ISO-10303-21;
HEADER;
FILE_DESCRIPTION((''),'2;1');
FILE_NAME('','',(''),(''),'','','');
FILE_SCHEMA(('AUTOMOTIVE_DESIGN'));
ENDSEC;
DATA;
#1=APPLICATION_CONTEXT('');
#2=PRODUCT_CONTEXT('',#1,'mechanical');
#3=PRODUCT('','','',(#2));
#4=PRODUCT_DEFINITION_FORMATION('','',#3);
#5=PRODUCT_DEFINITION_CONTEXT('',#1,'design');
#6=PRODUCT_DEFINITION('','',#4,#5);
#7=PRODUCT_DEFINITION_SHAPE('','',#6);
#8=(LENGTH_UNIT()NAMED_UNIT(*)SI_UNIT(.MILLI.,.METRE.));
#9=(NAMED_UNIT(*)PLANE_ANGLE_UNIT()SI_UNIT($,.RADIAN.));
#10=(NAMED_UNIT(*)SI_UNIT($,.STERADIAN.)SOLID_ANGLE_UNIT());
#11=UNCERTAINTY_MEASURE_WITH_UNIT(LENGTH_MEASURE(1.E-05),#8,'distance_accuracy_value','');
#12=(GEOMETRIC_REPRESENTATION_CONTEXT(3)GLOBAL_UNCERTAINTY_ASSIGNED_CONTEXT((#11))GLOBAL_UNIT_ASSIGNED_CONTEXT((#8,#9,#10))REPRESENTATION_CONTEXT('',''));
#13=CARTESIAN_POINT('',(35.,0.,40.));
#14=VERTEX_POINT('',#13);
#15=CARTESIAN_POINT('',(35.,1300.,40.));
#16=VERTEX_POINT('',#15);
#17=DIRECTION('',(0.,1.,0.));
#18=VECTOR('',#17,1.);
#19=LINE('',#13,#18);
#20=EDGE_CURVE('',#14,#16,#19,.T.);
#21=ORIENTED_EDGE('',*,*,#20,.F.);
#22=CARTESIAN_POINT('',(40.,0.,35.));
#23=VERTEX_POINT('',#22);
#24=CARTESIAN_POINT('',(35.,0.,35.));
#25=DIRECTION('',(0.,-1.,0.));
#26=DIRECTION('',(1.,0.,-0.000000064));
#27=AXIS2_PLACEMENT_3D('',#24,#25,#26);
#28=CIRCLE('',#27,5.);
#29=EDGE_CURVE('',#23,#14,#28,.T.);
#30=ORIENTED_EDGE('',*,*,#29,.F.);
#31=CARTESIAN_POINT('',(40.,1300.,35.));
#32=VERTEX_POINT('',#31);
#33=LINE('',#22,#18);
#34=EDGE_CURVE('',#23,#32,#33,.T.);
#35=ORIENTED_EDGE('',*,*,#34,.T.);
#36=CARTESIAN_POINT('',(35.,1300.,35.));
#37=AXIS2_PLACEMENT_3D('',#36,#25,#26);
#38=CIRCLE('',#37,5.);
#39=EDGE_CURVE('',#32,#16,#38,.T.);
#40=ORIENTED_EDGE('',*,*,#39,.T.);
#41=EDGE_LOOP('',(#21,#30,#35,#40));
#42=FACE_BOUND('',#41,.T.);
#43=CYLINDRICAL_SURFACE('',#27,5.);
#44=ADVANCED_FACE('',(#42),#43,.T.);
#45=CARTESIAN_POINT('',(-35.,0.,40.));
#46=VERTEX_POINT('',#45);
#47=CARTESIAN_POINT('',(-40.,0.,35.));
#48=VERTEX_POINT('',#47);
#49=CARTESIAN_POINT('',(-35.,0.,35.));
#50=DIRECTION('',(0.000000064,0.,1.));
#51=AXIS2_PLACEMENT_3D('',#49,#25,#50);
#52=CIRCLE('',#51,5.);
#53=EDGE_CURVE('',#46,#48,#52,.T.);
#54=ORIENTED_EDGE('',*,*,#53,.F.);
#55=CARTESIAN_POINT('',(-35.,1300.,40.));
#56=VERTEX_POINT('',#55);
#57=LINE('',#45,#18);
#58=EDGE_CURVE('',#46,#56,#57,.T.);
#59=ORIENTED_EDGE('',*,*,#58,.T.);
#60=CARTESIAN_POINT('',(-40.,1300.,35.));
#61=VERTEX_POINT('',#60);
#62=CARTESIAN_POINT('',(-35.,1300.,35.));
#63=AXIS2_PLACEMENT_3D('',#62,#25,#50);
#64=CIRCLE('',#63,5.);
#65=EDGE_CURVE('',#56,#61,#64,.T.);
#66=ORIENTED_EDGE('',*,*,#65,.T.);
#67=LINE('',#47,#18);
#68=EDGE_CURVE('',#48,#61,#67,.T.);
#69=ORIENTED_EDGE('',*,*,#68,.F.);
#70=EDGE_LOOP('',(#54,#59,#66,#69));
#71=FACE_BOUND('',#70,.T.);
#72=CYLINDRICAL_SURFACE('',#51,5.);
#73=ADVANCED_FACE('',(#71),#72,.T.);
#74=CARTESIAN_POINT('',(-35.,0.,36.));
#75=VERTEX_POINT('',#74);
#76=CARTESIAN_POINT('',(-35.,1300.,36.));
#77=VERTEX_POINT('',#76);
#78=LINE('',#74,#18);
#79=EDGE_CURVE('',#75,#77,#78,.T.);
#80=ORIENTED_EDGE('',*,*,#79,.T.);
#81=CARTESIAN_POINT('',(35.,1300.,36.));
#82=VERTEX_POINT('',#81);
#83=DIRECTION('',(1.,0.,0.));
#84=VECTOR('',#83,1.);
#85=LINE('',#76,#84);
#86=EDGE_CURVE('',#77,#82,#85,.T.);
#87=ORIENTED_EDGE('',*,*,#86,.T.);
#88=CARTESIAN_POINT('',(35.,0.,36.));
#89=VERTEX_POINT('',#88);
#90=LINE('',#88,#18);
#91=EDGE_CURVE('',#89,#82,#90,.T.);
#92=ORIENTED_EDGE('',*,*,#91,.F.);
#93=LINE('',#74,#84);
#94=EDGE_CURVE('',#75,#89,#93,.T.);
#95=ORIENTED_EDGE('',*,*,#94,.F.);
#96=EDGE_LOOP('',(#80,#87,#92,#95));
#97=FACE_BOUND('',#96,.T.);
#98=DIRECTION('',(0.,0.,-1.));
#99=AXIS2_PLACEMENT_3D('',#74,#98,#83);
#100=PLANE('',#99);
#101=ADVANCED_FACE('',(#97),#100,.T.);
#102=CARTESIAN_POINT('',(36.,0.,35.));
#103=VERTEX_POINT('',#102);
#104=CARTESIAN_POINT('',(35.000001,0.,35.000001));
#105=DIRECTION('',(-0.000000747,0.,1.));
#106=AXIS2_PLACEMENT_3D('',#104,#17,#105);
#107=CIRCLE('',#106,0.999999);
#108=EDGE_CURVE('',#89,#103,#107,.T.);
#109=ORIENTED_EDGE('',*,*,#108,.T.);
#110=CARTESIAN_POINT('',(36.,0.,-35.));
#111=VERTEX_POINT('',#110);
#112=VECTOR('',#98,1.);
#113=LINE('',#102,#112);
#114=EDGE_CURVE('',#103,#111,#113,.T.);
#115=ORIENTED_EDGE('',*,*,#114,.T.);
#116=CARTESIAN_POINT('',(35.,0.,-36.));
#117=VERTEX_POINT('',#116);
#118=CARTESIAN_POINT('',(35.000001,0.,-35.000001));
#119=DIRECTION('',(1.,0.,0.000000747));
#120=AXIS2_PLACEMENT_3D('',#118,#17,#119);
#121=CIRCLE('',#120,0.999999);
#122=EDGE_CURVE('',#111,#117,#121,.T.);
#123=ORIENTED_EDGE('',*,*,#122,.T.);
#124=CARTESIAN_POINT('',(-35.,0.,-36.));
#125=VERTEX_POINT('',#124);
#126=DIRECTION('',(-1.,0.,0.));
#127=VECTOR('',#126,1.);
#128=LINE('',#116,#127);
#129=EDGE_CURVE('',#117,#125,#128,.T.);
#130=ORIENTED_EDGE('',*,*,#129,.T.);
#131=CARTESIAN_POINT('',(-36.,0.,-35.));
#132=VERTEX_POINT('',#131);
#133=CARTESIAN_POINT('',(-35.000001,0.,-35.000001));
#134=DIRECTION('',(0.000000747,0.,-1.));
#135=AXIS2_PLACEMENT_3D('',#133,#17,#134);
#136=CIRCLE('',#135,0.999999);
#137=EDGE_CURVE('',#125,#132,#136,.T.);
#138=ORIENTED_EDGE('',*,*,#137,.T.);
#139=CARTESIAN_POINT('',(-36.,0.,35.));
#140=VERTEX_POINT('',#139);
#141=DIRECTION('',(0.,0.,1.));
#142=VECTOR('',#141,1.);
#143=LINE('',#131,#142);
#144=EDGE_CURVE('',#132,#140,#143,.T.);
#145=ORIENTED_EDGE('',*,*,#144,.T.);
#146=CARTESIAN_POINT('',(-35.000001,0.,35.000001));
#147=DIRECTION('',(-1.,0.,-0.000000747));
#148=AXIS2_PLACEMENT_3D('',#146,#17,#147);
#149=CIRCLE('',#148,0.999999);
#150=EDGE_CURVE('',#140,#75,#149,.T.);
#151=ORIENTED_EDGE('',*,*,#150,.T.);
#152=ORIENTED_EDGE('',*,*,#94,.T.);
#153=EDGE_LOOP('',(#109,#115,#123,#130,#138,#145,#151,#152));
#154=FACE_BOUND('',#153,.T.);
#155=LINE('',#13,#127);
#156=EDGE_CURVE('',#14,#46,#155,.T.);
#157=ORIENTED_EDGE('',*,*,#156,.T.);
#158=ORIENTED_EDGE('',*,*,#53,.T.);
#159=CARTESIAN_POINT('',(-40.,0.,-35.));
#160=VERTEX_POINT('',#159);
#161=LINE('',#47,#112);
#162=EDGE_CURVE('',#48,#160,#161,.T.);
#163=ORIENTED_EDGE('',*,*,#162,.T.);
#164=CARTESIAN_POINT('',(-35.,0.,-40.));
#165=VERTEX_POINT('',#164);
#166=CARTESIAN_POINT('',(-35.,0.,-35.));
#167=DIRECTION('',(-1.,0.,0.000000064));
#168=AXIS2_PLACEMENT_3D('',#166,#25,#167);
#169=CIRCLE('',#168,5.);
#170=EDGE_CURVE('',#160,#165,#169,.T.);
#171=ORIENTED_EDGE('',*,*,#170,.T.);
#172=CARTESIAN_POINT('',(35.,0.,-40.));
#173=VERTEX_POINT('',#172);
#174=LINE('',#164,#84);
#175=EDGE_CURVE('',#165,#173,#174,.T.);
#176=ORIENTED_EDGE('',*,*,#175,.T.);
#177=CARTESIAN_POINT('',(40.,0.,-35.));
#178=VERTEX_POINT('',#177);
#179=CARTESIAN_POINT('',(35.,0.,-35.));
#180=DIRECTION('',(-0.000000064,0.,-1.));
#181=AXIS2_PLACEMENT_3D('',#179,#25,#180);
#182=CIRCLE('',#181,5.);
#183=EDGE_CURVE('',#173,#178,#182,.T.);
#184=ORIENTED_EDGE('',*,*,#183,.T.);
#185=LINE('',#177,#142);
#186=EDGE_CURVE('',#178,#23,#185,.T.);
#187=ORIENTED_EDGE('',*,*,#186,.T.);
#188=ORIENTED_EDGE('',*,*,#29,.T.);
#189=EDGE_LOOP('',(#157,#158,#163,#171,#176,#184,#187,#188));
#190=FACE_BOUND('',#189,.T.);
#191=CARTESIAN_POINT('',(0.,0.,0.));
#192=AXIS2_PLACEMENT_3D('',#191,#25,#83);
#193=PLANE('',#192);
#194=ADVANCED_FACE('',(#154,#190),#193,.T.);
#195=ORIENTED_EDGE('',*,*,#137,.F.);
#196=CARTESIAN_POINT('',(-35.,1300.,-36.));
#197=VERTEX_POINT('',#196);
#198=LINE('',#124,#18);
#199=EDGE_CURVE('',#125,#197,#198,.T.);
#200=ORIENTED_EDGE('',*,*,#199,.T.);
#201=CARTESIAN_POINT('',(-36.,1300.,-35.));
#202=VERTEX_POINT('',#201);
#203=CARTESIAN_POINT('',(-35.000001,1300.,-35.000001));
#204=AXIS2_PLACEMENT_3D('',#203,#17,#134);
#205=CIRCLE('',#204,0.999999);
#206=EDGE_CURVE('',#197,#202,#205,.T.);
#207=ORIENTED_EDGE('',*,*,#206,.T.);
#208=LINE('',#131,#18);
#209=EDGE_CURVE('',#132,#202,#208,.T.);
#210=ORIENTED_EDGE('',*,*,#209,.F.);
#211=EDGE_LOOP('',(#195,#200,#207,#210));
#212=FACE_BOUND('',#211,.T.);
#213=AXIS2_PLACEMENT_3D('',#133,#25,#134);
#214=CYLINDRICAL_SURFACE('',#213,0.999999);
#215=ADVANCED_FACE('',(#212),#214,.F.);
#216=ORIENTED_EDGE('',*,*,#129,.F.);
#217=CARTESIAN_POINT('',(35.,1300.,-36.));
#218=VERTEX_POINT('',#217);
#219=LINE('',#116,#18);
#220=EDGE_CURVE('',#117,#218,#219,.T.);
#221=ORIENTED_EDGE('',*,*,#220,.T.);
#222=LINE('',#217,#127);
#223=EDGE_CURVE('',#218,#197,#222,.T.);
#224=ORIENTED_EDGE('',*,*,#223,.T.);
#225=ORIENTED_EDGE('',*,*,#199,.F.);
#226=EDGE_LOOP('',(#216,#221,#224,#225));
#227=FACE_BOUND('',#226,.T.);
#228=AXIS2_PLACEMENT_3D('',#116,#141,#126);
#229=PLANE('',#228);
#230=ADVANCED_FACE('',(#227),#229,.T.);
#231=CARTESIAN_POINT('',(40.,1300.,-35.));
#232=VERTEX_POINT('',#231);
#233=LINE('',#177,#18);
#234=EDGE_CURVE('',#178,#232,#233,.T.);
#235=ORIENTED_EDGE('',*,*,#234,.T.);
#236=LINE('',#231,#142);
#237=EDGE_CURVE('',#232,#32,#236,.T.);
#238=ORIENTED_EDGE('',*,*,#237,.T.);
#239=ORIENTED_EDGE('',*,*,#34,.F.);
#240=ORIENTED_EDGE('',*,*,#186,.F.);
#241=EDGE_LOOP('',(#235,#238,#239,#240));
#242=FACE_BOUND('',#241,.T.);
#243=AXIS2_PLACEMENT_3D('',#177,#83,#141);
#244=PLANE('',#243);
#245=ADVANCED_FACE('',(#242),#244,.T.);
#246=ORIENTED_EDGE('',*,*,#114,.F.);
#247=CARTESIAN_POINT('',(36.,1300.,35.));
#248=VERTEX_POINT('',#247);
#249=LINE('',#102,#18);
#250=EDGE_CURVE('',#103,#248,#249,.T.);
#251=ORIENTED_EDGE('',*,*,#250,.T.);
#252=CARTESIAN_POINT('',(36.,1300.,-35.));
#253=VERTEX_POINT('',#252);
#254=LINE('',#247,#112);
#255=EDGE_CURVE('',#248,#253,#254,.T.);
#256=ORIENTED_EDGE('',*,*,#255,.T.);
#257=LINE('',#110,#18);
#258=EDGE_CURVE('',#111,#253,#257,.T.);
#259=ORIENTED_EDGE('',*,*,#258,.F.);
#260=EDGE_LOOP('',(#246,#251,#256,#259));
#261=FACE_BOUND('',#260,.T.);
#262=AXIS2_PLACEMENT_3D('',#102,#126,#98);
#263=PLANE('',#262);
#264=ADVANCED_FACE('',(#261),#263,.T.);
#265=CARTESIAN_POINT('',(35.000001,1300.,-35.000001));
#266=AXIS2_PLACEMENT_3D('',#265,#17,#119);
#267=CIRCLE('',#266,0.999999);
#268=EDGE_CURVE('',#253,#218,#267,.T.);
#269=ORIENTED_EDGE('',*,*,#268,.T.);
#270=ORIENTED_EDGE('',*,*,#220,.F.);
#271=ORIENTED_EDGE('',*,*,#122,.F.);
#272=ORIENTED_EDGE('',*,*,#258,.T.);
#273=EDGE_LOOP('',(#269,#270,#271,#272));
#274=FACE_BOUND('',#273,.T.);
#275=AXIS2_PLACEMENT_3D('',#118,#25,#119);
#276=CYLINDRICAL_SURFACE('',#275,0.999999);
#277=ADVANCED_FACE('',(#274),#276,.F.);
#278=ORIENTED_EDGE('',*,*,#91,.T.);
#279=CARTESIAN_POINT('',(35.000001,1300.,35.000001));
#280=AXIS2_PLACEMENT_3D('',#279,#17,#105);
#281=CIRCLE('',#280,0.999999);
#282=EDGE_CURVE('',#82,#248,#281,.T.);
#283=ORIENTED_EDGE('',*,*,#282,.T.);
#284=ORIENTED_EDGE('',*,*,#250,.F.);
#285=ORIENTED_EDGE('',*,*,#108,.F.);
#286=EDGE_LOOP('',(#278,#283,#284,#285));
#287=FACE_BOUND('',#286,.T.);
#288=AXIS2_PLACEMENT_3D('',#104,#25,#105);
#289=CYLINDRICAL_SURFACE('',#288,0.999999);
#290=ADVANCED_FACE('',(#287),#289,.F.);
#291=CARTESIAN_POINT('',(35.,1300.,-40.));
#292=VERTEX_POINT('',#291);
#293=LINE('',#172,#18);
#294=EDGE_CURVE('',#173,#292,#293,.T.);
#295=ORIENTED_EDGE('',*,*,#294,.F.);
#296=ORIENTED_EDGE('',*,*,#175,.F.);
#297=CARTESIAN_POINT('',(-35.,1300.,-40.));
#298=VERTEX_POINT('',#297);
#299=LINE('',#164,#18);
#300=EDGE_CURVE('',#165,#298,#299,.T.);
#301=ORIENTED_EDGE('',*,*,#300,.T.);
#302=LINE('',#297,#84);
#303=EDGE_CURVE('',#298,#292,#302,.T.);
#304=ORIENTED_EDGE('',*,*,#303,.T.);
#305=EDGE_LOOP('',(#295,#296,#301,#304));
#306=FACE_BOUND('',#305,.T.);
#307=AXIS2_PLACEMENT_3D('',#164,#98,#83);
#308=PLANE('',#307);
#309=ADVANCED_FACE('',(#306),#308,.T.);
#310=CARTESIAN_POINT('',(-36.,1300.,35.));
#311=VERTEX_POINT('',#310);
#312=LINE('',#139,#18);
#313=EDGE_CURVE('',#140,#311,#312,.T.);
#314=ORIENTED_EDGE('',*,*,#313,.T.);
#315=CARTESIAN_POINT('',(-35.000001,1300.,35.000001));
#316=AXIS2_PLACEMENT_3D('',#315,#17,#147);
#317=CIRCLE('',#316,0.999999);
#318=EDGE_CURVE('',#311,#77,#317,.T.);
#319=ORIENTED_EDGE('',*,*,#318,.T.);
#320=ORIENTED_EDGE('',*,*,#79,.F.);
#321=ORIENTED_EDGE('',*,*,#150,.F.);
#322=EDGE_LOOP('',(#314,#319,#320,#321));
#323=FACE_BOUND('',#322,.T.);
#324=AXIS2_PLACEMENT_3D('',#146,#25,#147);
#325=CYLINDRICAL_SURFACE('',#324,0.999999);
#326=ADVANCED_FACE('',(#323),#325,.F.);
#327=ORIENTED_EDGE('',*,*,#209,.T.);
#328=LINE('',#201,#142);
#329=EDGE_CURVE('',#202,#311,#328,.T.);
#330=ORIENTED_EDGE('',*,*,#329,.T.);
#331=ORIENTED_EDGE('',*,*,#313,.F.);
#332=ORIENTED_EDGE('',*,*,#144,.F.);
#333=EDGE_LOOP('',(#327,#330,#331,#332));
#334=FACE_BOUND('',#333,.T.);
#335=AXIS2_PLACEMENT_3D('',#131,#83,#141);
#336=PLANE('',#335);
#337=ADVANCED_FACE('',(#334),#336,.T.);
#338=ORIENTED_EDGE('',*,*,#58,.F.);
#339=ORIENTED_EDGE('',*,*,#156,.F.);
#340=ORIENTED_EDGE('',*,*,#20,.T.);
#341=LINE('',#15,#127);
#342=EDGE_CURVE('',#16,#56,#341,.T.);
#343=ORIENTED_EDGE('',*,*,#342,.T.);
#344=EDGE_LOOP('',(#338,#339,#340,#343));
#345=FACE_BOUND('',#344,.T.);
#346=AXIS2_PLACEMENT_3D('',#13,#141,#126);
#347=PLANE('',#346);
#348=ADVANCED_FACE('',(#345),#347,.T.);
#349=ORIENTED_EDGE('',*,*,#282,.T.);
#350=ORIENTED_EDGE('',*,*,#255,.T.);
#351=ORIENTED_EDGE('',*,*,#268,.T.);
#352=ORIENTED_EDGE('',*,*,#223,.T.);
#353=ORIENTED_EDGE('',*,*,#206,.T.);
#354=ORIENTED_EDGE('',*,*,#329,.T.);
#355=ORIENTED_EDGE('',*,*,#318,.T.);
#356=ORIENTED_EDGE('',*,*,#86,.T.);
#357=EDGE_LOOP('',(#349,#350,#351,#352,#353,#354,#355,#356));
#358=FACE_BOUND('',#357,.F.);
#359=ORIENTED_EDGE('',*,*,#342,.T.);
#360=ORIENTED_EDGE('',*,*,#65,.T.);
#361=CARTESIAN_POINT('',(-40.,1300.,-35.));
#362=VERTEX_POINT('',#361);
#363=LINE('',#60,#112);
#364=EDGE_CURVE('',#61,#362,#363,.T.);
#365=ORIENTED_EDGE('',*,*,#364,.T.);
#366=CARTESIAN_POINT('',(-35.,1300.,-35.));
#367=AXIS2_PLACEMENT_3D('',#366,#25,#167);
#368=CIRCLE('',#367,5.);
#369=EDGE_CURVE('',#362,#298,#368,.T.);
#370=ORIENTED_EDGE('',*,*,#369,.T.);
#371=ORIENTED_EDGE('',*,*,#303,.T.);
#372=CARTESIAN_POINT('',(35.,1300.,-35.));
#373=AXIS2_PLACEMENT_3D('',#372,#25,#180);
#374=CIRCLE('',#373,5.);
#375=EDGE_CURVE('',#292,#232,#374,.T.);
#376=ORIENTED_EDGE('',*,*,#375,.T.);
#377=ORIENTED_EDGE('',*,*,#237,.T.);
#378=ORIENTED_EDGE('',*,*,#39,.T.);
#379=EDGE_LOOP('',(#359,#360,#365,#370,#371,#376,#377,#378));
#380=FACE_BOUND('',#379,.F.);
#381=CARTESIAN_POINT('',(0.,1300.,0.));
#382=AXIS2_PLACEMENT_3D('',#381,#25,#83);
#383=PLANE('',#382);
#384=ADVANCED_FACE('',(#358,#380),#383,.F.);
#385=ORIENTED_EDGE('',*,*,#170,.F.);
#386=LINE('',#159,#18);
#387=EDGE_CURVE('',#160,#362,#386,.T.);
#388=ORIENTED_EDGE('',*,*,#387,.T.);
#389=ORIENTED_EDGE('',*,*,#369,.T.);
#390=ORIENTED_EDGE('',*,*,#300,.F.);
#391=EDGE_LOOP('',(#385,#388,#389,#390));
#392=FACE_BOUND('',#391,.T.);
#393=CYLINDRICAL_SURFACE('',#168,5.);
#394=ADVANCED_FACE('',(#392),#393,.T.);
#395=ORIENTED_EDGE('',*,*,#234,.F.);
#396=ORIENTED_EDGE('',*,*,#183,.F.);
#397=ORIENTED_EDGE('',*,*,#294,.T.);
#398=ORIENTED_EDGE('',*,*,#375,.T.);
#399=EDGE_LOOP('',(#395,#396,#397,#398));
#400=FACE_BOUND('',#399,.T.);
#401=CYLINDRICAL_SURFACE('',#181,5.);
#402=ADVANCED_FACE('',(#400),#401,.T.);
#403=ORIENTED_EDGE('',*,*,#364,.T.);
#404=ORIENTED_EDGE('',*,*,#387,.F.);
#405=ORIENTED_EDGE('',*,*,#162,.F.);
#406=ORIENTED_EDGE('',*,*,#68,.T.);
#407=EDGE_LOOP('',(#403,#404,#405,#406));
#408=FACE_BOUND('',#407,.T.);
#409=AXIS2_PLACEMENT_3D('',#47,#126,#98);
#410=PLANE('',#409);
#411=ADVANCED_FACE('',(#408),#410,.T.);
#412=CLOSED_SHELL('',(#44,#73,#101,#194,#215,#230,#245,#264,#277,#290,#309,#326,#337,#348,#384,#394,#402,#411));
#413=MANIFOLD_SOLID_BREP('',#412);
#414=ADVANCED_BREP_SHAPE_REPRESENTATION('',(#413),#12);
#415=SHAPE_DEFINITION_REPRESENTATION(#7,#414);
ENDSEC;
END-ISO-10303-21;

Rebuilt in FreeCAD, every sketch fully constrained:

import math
import FreeCAD as App
import Part
import Sketcher
from FreeCAD import Vector
Q = App.Units.Quantity

doc = App.newDocument("Part")
body = doc.addObject("PartDesign::Body", "Body")

# Sketch on XZ plane
sketch1 = body.newObject("Sketcher::SketchObject", "Sketch")
sketch1.AttachmentSupport = (doc.getObject("XZ_Plane"), [""])
sketch1.MapMode = "FlatFace"
sketch1.addGeometry([
    Part.ArcOfCircle(Part.Circle(Vector(35, 35, 0), Vector(0, 0, 1), 5), math.radians(0), math.radians(90)),  # 0
    Part.LineSegment(Vector(35, 40, 0), Vector(-35, 40, 0)),  # 1
    Part.ArcOfCircle(Part.Circle(Vector(-35, 35, 0), Vector(0, 0, 1), 5), math.radians(90), math.radians(180)),  # 2
    Part.LineSegment(Vector(-40, 35, 0), Vector(-40, -35, 0)),  # 3
    Part.ArcOfCircle(Part.Circle(Vector(-35, -35, 0), Vector(0, 0, 1), 5), math.radians(180), math.radians(270)),  # 4
    Part.LineSegment(Vector(-35, -40, 0), Vector(35, -40, 0)),  # 5
    Part.ArcOfCircle(Part.Circle(Vector(35, -35, 0), Vector(0, 0, 1), 5), math.radians(-90), math.radians(0)),  # 6
    Part.LineSegment(Vector(40, -35, 0), Vector(40, 35, 0)),  # 7
    Part.LineSegment(Vector(-36, -35, 0), Vector(-36, 35, 0)),  # 8
    Part.ArcOfCircle(Part.Circle(Vector(-35, 35, 0), Vector(0, 0, 1), 1), math.radians(90), math.radians(180)),  # 9
    Part.LineSegment(Vector(-35, 36, 0), Vector(35, 36, 0)),  # 10
    Part.ArcOfCircle(Part.Circle(Vector(35, 35, 0), Vector(0, 0, 1), 1), math.radians(0), math.radians(90)),  # 11
    Part.LineSegment(Vector(36, 35, 0), Vector(36, -35, 0)),  # 12
    Part.ArcOfCircle(Part.Circle(Vector(35, -35, 0), Vector(0, 0, 1), 1), math.radians(-90), math.radians(0)),  # 13
    Part.LineSegment(Vector(35, -36, 0), Vector(-35, -36, 0)),  # 14
    Part.ArcOfCircle(Part.Circle(Vector(-35, -35, 0), Vector(0, 0, 1), 1), math.radians(180), math.radians(270)),  # 15
], False)
sketch1.addConstraint([
    Sketcher.Constraint("Tangent", 0, 2, 1, 1),
    Sketcher.Constraint("Tangent", 1, 2, 2, 1),
    Sketcher.Constraint("Tangent", 2, 2, 3, 1),
    Sketcher.Constraint("Tangent", 3, 2, 4, 1),
    Sketcher.Constraint("Tangent", 4, 2, 5, 1),
    Sketcher.Constraint("Tangent", 5, 2, 6, 1),
    Sketcher.Constraint("Tangent", 6, 2, 7, 1),
    Sketcher.Constraint("Tangent", 7, 2, 0, 1),
    Sketcher.Constraint("Tangent", 8, 2, 9, 2),
    Sketcher.Constraint("Tangent", 9, 1, 10, 1),
    Sketcher.Constraint("Tangent", 10, 2, 11, 2),
    Sketcher.Constraint("Tangent", 11, 1, 12, 1),
    Sketcher.Constraint("Tangent", 12, 2, 13, 2),
    Sketcher.Constraint("Tangent", 13, 1, 14, 1),
    Sketcher.Constraint("Tangent", 14, 2, 15, 2),
    Sketcher.Constraint("Tangent", 15, 1, 8, 1),
    Sketcher.Constraint("Horizontal", 1),
    Sketcher.Constraint("Vertical", 3),
    Sketcher.Constraint("Horizontal", 5),
    Sketcher.Constraint("Vertical", 7),
    Sketcher.Constraint("Vertical", 8),
    Sketcher.Constraint("Horizontal", 10),
    Sketcher.Constraint("Vertical", 12),
    Sketcher.Constraint("Horizontal", 14),
    Sketcher.Constraint("Coincident", 9, 3, 2, 3),
    Sketcher.Constraint("Coincident", 11, 3, 0, 3),
    Sketcher.Constraint("Coincident", 13, 3, 6, 3),
    Sketcher.Constraint("Equal", 0, 2),
    Sketcher.Constraint("Equal", 2, 4),
    Sketcher.Constraint("Equal", 4, 6),
    Sketcher.Constraint("Equal", 13, 15),
    Sketcher.Constraint("Symmetric", 0, 3, 4, 3, -1, 1),
    Sketcher.Constraint("Equal", 14, 3),
    Sketcher.Constraint("Radius", 0, Q("5 mm")),
    Sketcher.Constraint("Radius", 9, Q("0.999999 mm")),
    Sketcher.Constraint("DistanceX", 1, 2, 1, 1, Q("70 mm")),
])
pad1 = body.newObject("PartDesign::Pad", "Pad")
pad1.Profile = sketch1
pad1.Length = 1300
pad1.Reversed = True

doc.recompute()
